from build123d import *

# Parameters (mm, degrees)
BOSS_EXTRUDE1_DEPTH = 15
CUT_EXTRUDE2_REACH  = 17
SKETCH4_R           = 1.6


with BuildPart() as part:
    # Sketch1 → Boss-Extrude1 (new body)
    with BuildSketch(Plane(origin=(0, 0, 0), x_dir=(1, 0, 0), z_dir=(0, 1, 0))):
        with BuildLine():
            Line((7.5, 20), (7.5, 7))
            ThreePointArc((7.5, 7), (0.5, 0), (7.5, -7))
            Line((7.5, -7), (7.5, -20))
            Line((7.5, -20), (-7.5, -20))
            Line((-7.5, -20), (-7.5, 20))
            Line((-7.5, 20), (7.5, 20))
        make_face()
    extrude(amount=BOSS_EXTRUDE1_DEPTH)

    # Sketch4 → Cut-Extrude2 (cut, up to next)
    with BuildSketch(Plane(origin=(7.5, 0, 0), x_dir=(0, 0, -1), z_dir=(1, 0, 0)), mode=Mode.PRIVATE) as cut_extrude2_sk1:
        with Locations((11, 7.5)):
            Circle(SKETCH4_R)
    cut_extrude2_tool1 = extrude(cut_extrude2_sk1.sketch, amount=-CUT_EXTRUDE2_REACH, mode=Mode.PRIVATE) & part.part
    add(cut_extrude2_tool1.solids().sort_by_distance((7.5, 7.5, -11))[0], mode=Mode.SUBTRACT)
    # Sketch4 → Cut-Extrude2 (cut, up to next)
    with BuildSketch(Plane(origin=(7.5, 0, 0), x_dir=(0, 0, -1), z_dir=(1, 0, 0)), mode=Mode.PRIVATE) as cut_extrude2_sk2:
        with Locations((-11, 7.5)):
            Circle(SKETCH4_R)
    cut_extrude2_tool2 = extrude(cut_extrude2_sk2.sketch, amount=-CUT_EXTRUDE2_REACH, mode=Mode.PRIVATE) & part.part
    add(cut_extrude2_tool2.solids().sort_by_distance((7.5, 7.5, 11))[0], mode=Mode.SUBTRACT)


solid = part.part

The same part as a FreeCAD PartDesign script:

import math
import FreeCAD as App
import Part
import Sketcher
from FreeCAD import Vector

doc = App.newDocument("Part")
body = doc.addObject("PartDesign::Body", "Body")

# Sketch on XZ plane
sketch1 = body.newObject("Sketcher::SketchObject", "Sketch")
sketch1.AttachmentSupport = (doc.getObject("XZ_Plane"), [""])
sketch1.MapMode = "FlatFace"
sketch1.addGeometry([
    Part.LineSegment(Vector(8, -7, 0), Vector(8, -20, 0)),  # 0
    Part.LineSegment(Vector(8, -20, 0), Vector(-8, -20, 0)),  # 1
    Part.LineSegment(Vector(-8, -20, 0), Vector(-8, 20, 0)),  # 2
    Part.LineSegment(Vector(-8, 20, 0), Vector(8, 20, 0)),  # 3
    Part.LineSegment(Vector(8, 20, 0), Vector(8, 7, 0)),  # 4
    Part.ArcOfCircle(Part.Circle(Vector(8, 0, 0), Vector(0, 0, 1), 7), math.radians(90), math.radians(270)),  # 5
], False)
sketch1.addConstraint([
    Sketcher.Constraint("Coincident", 0, 2, 1, 1),
    Sketcher.Constraint("Coincident", 1, 2, 2, 1),
    Sketcher.Constraint("Coincident", 2, 2, 3, 1),
    Sketcher.Constraint("Coincident", 3, 2, 4, 1),
    Sketcher.Constraint("Coincident", 4, 2, 5, 1),
    Sketcher.Constraint("Coincident", 5, 2, 0, 1),
    Sketcher.Constraint("Vertical", 0),
    Sketcher.Constraint("Horizontal", 1),
    Sketcher.Constraint("Vertical", 2),
    Sketcher.Constraint("Horizontal", 3),
    Sketcher.Constraint("Vertical", 4),
    Sketcher.Constraint("Symmetric", 0, 2, 2, 2, -1, 1),
    Sketcher.Constraint("Symmetric", 4, 2, 5, 2, -1),
    Sketcher.Constraint("Vertical", 5, 3, 0, 2),
    Sketcher.Constraint("Radius", 5, 7.0),
    Sketcher.Constraint("DistanceX", 1, 2, 1, 1, 15.0),
    Sketcher.Constraint("DistanceY", 0, 2, 0, 1, 13.0),
])
pad1 = body.newObject("PartDesign::Pad", "Pad")
pad1.Profile = sketch1
pad1.Length = 15
pad1.Reversed = True

# Sketch on YZ plane
sketch2 = body.newObject("Sketcher::SketchObject", "Sketch001")
sketch2.AttachmentSupport = (doc.getObject("YZ_Plane"), [""])
sketch2.MapMode = "FlatFace"
sketch2.AttachmentOffset = App.Placement(Vector(0, 0, 7.5), App.Rotation())
sketch2.addGeometry(Part.Circle(Vector(7.5, -11, 0), Vector(0, 0, 1), 1.6), False)
sketch2.addConstraint([
    Sketcher.Constraint("Diameter", 0, 3.2),
    Sketcher.Constraint("DistanceY", 0, 3, -1, 1, 11.0),
    Sketcher.Constraint("DistanceX", -1, 1, 0, 3, 7.5),
])
pocket1 = body.newObject("PartDesign::Pocket", "Pocket")
pocket1.Profile = sketch2
pocket1.Type = "UpToFirst"

# Sketch on YZ plane
sketch3 = body.newObject("Sketcher::SketchObject", "Sketch002")
sketch3.AttachmentSupport = (doc.getObject("YZ_Plane"), [""])
sketch3.MapMode = "FlatFace"
sketch3.AttachmentOffset = App.Placement(Vector(0, 0, 7.5), App.Rotation())
sketch3.addGeometry(Part.Circle(Vector(7.5, 11, 0), Vector(0, 0, 1), 1.6), False)
sketch3.addConstraint([
    Sketcher.Constraint("Diameter", 0, 3.2),
    Sketcher.Constraint("DistanceY", -1, 1, 0, 3, 11.0),
    Sketcher.Constraint("DistanceX", -1, 1, 0, 3, 7.5),
])
pocket2 = body.newObject("PartDesign::Pocket", "Pocket001")
pocket2.Profile = sketch3
pocket2.Type = "UpToFirst"

doc.recompute()
